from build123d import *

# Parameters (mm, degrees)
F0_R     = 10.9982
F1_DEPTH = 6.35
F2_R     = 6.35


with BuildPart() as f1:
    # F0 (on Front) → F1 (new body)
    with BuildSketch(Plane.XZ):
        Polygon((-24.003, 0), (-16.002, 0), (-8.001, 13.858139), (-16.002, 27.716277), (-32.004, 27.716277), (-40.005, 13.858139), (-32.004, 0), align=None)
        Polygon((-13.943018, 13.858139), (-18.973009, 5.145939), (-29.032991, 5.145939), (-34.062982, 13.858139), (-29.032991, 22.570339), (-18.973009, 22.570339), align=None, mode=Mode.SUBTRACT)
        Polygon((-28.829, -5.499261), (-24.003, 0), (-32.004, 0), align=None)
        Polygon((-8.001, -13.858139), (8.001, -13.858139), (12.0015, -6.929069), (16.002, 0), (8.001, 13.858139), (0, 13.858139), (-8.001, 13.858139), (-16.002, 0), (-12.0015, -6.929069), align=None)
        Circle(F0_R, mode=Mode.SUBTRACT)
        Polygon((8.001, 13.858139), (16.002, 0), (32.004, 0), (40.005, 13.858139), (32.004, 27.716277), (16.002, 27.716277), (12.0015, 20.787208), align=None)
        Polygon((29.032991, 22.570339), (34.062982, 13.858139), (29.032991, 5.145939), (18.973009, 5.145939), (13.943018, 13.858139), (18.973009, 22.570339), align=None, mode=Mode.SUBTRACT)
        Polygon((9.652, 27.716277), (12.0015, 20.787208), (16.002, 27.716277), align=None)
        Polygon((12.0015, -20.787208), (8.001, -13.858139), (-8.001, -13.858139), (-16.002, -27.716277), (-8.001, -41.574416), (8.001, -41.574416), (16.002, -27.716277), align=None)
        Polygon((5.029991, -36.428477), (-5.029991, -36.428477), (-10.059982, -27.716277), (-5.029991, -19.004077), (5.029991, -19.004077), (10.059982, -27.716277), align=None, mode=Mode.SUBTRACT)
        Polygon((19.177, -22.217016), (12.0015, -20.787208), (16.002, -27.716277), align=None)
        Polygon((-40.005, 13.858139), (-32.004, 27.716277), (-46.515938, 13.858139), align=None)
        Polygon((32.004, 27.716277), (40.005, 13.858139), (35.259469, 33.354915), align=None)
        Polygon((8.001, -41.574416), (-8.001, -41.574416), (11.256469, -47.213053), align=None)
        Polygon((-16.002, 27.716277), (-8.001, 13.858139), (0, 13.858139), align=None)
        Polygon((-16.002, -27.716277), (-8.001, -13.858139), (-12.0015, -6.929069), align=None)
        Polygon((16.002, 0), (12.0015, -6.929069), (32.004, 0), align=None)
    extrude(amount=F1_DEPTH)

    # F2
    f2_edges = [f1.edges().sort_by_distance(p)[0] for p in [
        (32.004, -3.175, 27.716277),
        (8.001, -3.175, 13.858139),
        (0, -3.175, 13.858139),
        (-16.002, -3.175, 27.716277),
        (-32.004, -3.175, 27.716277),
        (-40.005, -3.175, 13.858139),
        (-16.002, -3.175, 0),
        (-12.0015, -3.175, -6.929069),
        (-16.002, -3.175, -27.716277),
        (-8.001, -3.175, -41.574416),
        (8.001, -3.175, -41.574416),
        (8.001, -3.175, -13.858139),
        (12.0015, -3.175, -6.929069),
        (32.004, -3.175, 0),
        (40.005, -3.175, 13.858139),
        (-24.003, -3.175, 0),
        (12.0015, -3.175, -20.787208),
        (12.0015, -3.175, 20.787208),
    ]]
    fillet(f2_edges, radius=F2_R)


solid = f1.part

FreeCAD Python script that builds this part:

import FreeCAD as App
import Part
import Sketcher

V = App.Vector
Q = App.Units.Quantity


def edges_at(feature, points):
    """Names of the edges that pass closest to the given points."""
    edges = feature.Shape.Edges
    near = lambda p: min(range(len(edges)), key=lambda i: edges[i].distToShape(Part.Vertex(*p))[0])
    return sorted({f"Edge{near(p) + 1}" for p in points})

doc = App.newDocument("Part")
body = doc.addObject("PartDesign::Body", "Body")

sketch1 = body.newObject("Sketcher::SketchObject", "Sketch")
sketch1.AttachmentSupport = (doc.getObject("XZ_Plane"), [""])
sketch1.MapMode = "FlatFace"
sketch1.addGeometry([
    Part.LineSegment(V(-16, 28, 0), V(-32, 28, 0)),
    Part.LineSegment(V(-32, 28, 0), V(-47, 14, 0)),
    Part.LineSegment(V(-47, 14, 0), V(-40, 14, 0)),
    Part.LineSegment(V(-40, 14, 0), V(-32, 0, 0)),
    Part.LineSegment(V(-32, 0, 0), V(-29, -5, 0)),
    Part.LineSegment(V(-29, -5, 0), V(-24, 0, 0)),
    Part.LineSegment(V(-24, 0, 0), V(-16, 0, 0)),
    Part.LineSegment(V(-16, 0, 0), V(-12, -7, 0)),
    Part.LineSegment(V(-12, -7, 0), V(-16, -28, 0)),
    Part.LineSegment(V(-16, -28, 0), V(-8, -42, 0)),
    Part.LineSegment(V(-8, -42, 0), V(11, -47, 0)),
    Part.LineSegment(V(11, -47, 0), V(8, -42, 0)),
    Part.LineSegment(V(8, -42, 0), V(16, -28, 0)),
    Part.LineSegment(V(16, -28, 0), V(19, -22, 0)),
    Part.LineSegment(V(19, -22, 0), V(12, -21, 0)),
    Part.LineSegment(V(12, -21, 0), V(8, -14, 0)),
    Part.LineSegment(V(8, -14, 0), V(12, -7, 0)),
    Part.LineSegment(V(12, -7, 0), V(32, 0, 0)),
    Part.LineSegment(V(32, 0, 0), V(40, 14, 0)),
    Part.LineSegment(V(40, 14, 0), V(35, 33, 0)),
    Part.LineSegment(V(35, 33, 0), V(32, 28, 0)),
    Part.LineSegment(V(32, 28, 0), V(10, 28, 0)),
    Part.LineSegment(V(10, 28, 0), V(12, 21, 0)),
    Part.LineSegment(V(12, 21, 0), V(8, 14, 0)),
    Part.LineSegment(V(8, 14, 0), V(0, 14, 0)),
    Part.LineSegment(V(0, 14, 0), V(-16, 28, 0)),
    Part.LineSegment(V(10, -28, 0), V(5, -36, 0)),
    Part.LineSegment(V(5, -36, 0), V(-5, -36, 0)),
    Part.LineSegment(V(-5, -36, 0), V(-10, -28, 0)),
    Part.LineSegment(V(-10, -28, 0), V(-5, -19, 0)),
    Part.LineSegment(V(-5, -19, 0), V(5, -19, 0)),
    Part.LineSegment(V(5, -19, 0), V(10, -28, 0)),
    Part.LineSegment(V(-19, 23, 0), V(-14, 14, 0)),
    Part.LineSegment(V(-14, 14, 0), V(-19, 5, 0)),
    Part.LineSegment(V(-19, 5, 0), V(-29, 5, 0)),
    Part.LineSegment(V(-29, 5, 0), V(-34, 14, 0)),
    Part.LineSegment(V(-34, 14, 0), V(-29, 23, 0)),
    Part.LineSegment(V(-29, 23, 0), V(-19, 23, 0)),
    Part.Circle(V(0, 0, 0), V(0, 0, 1), 11),
    Part.LineSegment(V(19, 23, 0), V(29, 23, 0)),
    Part.LineSegment(V(29, 23, 0), V(34, 14, 0)),
    Part.LineSegment(V(34, 14, 0), V(29, 5, 0)),
    Part.LineSegment(V(29, 5, 0), V(19, 5, 0)),
    Part.LineSegment(V(19, 5, 0), V(14, 14, 0)),
    Part.LineSegment(V(14, 14, 0), V(19, 23, 0)),
], False)
sketch1.addConstraint([
    Sketcher.Constraint("Coincident", 0, 2, 1, 1),
    Sketcher.Constraint("Coincident", 1, 2, 2, 1),
    Sketcher.Constraint("Coincident", 2, 2, 3, 1),
    Sketcher.Constraint("Coincident", 3, 2, 4, 1),
    Sketcher.Constraint("Coincident", 4, 2, 5, 1),
    Sketcher.Constraint("Coincident", 5, 2, 6, 1),
    Sketcher.Constraint("Coincident", 6, 2, 7, 1),
    Sketcher.Constraint("Coincident", 7, 2, 8, 1),
    Sketcher.Constraint("Coincident", 8, 2, 9, 1),
    Sketcher.Constraint("Coincident", 9, 2, 10, 1),
    Sketcher.Constraint("Coincident", 10, 2, 11, 1),
    Sketcher.Constraint("Coincident", 11, 2, 12, 1),
    Sketcher.Constraint("Coincident", 12, 2, 13, 1),
    Sketcher.Constraint("Coincident", 13, 2, 14, 1),
    Sketcher.Constraint("Coincident", 14, 2, 15, 1),
    Sketcher.Constraint("Coincident", 15, 2, 16, 1),
    Sketcher.Constraint("Coincident", 16, 2, 17, 1),
    Sketcher.Constraint("Coincident", 17, 2, 18, 1),
    Sketcher.Constraint("Coincident", 18, 2, 19, 1),
    Sketcher.Constraint("Coincident", 19, 2, 20, 1),
    Sketcher.Constraint("Coincident", 20, 2, 21, 1),
    Sketcher.Constraint("Coincident", 21, 2, 22, 1),
    Sketcher.Constraint("Coincident", 22, 2, 23, 1),
    Sketcher.Constraint("Coincident", 23, 2, 24, 1),
    Sketcher.Constraint("Coincident", 24, 2, 25, 1),
    Sketcher.Constraint("Coincident", 25, 2, 0, 1),
    Sketcher.Constraint("Coincident", 26, 2, 27, 1),
    Sketcher.Constraint("Coincident", 27, 2, 28, 1),
    Sketcher.Constraint("Coincident", 28, 2, 29, 1),
    Sketcher.Constraint("Coincident", 29, 2, 30, 1),
    Sketcher.Constraint("Coincident", 30, 2, 31, 1),
    Sketcher.Constraint("Coincident", 31, 2, 26, 1),
    Sketcher.Constraint("Coincident", 32, 2, 33, 1),
    Sketcher.Constraint("Coincident", 33, 2, 34, 1),
    Sketcher.Constraint("Coincident", 34, 2, 35, 1),
    Sketcher.Constraint("Coincident", 35, 2, 36, 1),
    Sketcher.Constraint("Coincident", 36, 2, 37, 1),
    Sketcher.Constraint("Coincident", 37, 2, 32, 1),
    Sketcher.Constraint("Coincident", 39, 2, 40, 1),
    Sketcher.Constraint("Coincident", 40, 2, 41, 1),
    Sketcher.Constraint("Coincident", 41, 2, 42, 1),
    Sketcher.Constraint("Coincident", 42, 2, 43, 1),
    Sketcher.Constraint("Coincident", 43, 2, 44, 1),
    Sketcher.Constraint("Coincident", 44, 2, 39, 1),
    Sketcher.Constraint("Horizontal", 0),
    Sketcher.Constraint("Horizontal", 2),
    Sketcher.Constraint("Horizontal", 6),
    Sketcher.Constraint("Horizontal", 21),
    Sketcher.Constraint("Horizontal", 24),
    Sketcher.Constraint("Horizontal", 27),
    Sketcher.Constraint("Horizontal", 30),
    Sketcher.Constraint("Horizontal", 34),
    Sketcher.Constraint("Horizontal", 37),
    Sketcher.Constraint("Horizontal", 39),
    Sketcher.Constraint("Horizontal", 42),
    Sketcher.Constraint("Coincident", 38, 3, -1, 1),
    Sketcher.Constraint("Symmetric", 3, 2, 17, 2, -1, 1),
    Sketcher.Constraint("Symmetric", 12, 2, 25, 2, -1, 1),
    Sketcher.Constraint("Symmetric", 9, 2, 11, 2, -2),
    Sketcher.Constraint("Symmetric", 8, 2, 12, 2, -2),
    Sketcher.Constraint("Symmetric", 7, 2, 16, 2, -2),
    Sketcher.Constraint("Symmetric", 2, 2, 18, 2, -2),
    Sketcher.Constraint("Symmetric", 0, 2, 20, 2, -2),
    Sketcher.Constraint("Symmetric", 28, 2, 31, 2, -2),
    Sketcher.Constraint("Symmetric", 36, 2, 39, 2, -2),
    Sketcher.Constraint("Symmetric", 35, 2, 40, 2, -2),
    Sketcher.Constraint("Symmetric", 34, 2, 41, 2, -2),
    Sketcher.Constraint("Symmetric", 32, 2, 43, 2, -2),
    Sketcher.Constraint("Symmetric", 14, 2, 22, 2, -1),
    Sketcher.Constraint("Symmetric", 15, 2, 23, 2, -1),
    Sketcher.Constraint("PointOnObject", 3, 2, -1),
    Sketcher.Constraint("PointOnObject", 5, 2, -1),
    Sketcher.Constraint("PointOnObject", 24, 2, -2),
    Sketcher.Constraint("Parallel", 3, 4),
    Sketcher.Constraint("Parallel", 4, 7),
    Sketcher.Constraint("Parallel", 7, 9),
    Sketcher.Constraint("Parallel", 9, 11),
    Sketcher.Constraint("Parallel", 12, 13),
    Sketcher.Constraint("Parallel", 11, 15),
    Sketcher.Constraint("Parallel", 13, 16),
    Sketcher.Constraint("Parallel", 18, 20),
    Sketcher.Constraint("Parallel", 23, 26),
    Sketcher.Constraint("Parallel", 15, 28),
    Sketcher.Constraint("Parallel", 26, 29),
    Sketcher.Constraint("Parallel", 28, 31),
    Sketcher.Constraint("Parallel", 31, 32),
    Sketcher.Constraint("Parallel", 29, 33),
    Sketcher.Constraint("Parallel", 32, 35),
    Sketcher.Constraint("Parallel", 33, 36),
    Sketcher.Constraint("Parallel", 40, 43),
    Sketcher.Constraint("Parallel", 41, 44),
    Sketcher.Constraint("Horizontal", 18, 2, 23, 2),
    Sketcher.Constraint("Horizontal", 12, 2, 28, 2),
    Sketcher.Constraint("Horizontal", 24, 2, 32, 2),
    Sketcher.Constraint("Horizontal", 32, 2, 35, 2),
    Sketcher.Constraint("Vertical", 0, 2, 3, 2),
    Sketcher.Constraint("Vertical", 6, 2, 8, 2),
    Sketcher.Constraint("Vertical", 11, 2, 15, 2),
    Sketcher.Constraint("Vertical", 14, 2, 16, 2),
    Sketcher.Constraint("Vertical", 27, 2, 29, 2),
    Sketcher.Constraint("Vertical", 34, 2, 36, 2),
    Sketcher.Constraint("Equal", 6, 24),
    Sketcher.Constraint("Equal", 30, 34),
    Sketcher.Constraint("Equal", 1, 10),
    Sketcher.Constraint("Equal", 4, 13),
    Sketcher.Constraint("Equal", 5, 14),
    Sketcher.Constraint("Equal", 7, 15),
    Sketcher.Constraint("Equal", 8, 17),
    Sketcher.Constraint("Equal", 10, 19),
    Sketcher.Constraint("Equal", 11, 20),
    Sketcher.Constraint("Equal", 14, 22),
    Sketcher.Constraint("Equal", 17, 25),
    Sketcher.Constraint("Equal", 31, 32),
    Sketcher.Constraint("Diameter", 38, Q("0.866 in")),
    Sketcher.Constraint("DistanceX", 0, 2, 0, 1, Q("0.63 in")),
    Sketcher.Constraint("DistanceX", 21, 2, 21, 1, Q("0.88 in")),
    Sketcher.Constraint("Distance", 1, Q("0.79 in")),
    Sketcher.Constraint("DistanceY", 26, 2, 12, 2, Q("0.343 in")),
    Sketcher.Constraint("DistanceX", 34, 2, 34, 1, 10.059982),
    Sketcher.Constraint("DistanceX", 33, 2, -1, 1, 18.973009),
])
pad1 = body.newObject("PartDesign::Pad", "Pad")
pad1.Profile = sketch1
pad1.Length = Q("0.25 in")
doc.recompute()

fillet = body.newObject("PartDesign::Fillet", "Fillet")
fillet.Base = (pad1, edges_at(pad1, [
    (32.004, -3.175, 27.716),
    (8.001, -3.175, 13.858),
    (0, -3.175, 13.858),
    (-16.002, -3.175, 27.716),
    (-32.004, -3.175, 27.716),
    (-40.005, -3.175, 13.858),
    (-16.002, -3.175, 0),
    (-12.002, -3.175, -6.929),
    (-16.002, -3.175, -27.716),
    (-8.001, -3.175, -41.574),
    (8.001, -3.175, -41.574),
    (8.001, -3.175, -13.858),
    (12.002, -3.175, -6.929),
    (32.004, -3.175, 0),
    (40.005, -3.175, 13.858),
    (-24.003, -3.175, 0),
    (12.002, -3.175, -20.787),
    (12.002, -3.175, 20.787),
]))
fillet.Radius = Q("0.25 in")

doc.recompute()
